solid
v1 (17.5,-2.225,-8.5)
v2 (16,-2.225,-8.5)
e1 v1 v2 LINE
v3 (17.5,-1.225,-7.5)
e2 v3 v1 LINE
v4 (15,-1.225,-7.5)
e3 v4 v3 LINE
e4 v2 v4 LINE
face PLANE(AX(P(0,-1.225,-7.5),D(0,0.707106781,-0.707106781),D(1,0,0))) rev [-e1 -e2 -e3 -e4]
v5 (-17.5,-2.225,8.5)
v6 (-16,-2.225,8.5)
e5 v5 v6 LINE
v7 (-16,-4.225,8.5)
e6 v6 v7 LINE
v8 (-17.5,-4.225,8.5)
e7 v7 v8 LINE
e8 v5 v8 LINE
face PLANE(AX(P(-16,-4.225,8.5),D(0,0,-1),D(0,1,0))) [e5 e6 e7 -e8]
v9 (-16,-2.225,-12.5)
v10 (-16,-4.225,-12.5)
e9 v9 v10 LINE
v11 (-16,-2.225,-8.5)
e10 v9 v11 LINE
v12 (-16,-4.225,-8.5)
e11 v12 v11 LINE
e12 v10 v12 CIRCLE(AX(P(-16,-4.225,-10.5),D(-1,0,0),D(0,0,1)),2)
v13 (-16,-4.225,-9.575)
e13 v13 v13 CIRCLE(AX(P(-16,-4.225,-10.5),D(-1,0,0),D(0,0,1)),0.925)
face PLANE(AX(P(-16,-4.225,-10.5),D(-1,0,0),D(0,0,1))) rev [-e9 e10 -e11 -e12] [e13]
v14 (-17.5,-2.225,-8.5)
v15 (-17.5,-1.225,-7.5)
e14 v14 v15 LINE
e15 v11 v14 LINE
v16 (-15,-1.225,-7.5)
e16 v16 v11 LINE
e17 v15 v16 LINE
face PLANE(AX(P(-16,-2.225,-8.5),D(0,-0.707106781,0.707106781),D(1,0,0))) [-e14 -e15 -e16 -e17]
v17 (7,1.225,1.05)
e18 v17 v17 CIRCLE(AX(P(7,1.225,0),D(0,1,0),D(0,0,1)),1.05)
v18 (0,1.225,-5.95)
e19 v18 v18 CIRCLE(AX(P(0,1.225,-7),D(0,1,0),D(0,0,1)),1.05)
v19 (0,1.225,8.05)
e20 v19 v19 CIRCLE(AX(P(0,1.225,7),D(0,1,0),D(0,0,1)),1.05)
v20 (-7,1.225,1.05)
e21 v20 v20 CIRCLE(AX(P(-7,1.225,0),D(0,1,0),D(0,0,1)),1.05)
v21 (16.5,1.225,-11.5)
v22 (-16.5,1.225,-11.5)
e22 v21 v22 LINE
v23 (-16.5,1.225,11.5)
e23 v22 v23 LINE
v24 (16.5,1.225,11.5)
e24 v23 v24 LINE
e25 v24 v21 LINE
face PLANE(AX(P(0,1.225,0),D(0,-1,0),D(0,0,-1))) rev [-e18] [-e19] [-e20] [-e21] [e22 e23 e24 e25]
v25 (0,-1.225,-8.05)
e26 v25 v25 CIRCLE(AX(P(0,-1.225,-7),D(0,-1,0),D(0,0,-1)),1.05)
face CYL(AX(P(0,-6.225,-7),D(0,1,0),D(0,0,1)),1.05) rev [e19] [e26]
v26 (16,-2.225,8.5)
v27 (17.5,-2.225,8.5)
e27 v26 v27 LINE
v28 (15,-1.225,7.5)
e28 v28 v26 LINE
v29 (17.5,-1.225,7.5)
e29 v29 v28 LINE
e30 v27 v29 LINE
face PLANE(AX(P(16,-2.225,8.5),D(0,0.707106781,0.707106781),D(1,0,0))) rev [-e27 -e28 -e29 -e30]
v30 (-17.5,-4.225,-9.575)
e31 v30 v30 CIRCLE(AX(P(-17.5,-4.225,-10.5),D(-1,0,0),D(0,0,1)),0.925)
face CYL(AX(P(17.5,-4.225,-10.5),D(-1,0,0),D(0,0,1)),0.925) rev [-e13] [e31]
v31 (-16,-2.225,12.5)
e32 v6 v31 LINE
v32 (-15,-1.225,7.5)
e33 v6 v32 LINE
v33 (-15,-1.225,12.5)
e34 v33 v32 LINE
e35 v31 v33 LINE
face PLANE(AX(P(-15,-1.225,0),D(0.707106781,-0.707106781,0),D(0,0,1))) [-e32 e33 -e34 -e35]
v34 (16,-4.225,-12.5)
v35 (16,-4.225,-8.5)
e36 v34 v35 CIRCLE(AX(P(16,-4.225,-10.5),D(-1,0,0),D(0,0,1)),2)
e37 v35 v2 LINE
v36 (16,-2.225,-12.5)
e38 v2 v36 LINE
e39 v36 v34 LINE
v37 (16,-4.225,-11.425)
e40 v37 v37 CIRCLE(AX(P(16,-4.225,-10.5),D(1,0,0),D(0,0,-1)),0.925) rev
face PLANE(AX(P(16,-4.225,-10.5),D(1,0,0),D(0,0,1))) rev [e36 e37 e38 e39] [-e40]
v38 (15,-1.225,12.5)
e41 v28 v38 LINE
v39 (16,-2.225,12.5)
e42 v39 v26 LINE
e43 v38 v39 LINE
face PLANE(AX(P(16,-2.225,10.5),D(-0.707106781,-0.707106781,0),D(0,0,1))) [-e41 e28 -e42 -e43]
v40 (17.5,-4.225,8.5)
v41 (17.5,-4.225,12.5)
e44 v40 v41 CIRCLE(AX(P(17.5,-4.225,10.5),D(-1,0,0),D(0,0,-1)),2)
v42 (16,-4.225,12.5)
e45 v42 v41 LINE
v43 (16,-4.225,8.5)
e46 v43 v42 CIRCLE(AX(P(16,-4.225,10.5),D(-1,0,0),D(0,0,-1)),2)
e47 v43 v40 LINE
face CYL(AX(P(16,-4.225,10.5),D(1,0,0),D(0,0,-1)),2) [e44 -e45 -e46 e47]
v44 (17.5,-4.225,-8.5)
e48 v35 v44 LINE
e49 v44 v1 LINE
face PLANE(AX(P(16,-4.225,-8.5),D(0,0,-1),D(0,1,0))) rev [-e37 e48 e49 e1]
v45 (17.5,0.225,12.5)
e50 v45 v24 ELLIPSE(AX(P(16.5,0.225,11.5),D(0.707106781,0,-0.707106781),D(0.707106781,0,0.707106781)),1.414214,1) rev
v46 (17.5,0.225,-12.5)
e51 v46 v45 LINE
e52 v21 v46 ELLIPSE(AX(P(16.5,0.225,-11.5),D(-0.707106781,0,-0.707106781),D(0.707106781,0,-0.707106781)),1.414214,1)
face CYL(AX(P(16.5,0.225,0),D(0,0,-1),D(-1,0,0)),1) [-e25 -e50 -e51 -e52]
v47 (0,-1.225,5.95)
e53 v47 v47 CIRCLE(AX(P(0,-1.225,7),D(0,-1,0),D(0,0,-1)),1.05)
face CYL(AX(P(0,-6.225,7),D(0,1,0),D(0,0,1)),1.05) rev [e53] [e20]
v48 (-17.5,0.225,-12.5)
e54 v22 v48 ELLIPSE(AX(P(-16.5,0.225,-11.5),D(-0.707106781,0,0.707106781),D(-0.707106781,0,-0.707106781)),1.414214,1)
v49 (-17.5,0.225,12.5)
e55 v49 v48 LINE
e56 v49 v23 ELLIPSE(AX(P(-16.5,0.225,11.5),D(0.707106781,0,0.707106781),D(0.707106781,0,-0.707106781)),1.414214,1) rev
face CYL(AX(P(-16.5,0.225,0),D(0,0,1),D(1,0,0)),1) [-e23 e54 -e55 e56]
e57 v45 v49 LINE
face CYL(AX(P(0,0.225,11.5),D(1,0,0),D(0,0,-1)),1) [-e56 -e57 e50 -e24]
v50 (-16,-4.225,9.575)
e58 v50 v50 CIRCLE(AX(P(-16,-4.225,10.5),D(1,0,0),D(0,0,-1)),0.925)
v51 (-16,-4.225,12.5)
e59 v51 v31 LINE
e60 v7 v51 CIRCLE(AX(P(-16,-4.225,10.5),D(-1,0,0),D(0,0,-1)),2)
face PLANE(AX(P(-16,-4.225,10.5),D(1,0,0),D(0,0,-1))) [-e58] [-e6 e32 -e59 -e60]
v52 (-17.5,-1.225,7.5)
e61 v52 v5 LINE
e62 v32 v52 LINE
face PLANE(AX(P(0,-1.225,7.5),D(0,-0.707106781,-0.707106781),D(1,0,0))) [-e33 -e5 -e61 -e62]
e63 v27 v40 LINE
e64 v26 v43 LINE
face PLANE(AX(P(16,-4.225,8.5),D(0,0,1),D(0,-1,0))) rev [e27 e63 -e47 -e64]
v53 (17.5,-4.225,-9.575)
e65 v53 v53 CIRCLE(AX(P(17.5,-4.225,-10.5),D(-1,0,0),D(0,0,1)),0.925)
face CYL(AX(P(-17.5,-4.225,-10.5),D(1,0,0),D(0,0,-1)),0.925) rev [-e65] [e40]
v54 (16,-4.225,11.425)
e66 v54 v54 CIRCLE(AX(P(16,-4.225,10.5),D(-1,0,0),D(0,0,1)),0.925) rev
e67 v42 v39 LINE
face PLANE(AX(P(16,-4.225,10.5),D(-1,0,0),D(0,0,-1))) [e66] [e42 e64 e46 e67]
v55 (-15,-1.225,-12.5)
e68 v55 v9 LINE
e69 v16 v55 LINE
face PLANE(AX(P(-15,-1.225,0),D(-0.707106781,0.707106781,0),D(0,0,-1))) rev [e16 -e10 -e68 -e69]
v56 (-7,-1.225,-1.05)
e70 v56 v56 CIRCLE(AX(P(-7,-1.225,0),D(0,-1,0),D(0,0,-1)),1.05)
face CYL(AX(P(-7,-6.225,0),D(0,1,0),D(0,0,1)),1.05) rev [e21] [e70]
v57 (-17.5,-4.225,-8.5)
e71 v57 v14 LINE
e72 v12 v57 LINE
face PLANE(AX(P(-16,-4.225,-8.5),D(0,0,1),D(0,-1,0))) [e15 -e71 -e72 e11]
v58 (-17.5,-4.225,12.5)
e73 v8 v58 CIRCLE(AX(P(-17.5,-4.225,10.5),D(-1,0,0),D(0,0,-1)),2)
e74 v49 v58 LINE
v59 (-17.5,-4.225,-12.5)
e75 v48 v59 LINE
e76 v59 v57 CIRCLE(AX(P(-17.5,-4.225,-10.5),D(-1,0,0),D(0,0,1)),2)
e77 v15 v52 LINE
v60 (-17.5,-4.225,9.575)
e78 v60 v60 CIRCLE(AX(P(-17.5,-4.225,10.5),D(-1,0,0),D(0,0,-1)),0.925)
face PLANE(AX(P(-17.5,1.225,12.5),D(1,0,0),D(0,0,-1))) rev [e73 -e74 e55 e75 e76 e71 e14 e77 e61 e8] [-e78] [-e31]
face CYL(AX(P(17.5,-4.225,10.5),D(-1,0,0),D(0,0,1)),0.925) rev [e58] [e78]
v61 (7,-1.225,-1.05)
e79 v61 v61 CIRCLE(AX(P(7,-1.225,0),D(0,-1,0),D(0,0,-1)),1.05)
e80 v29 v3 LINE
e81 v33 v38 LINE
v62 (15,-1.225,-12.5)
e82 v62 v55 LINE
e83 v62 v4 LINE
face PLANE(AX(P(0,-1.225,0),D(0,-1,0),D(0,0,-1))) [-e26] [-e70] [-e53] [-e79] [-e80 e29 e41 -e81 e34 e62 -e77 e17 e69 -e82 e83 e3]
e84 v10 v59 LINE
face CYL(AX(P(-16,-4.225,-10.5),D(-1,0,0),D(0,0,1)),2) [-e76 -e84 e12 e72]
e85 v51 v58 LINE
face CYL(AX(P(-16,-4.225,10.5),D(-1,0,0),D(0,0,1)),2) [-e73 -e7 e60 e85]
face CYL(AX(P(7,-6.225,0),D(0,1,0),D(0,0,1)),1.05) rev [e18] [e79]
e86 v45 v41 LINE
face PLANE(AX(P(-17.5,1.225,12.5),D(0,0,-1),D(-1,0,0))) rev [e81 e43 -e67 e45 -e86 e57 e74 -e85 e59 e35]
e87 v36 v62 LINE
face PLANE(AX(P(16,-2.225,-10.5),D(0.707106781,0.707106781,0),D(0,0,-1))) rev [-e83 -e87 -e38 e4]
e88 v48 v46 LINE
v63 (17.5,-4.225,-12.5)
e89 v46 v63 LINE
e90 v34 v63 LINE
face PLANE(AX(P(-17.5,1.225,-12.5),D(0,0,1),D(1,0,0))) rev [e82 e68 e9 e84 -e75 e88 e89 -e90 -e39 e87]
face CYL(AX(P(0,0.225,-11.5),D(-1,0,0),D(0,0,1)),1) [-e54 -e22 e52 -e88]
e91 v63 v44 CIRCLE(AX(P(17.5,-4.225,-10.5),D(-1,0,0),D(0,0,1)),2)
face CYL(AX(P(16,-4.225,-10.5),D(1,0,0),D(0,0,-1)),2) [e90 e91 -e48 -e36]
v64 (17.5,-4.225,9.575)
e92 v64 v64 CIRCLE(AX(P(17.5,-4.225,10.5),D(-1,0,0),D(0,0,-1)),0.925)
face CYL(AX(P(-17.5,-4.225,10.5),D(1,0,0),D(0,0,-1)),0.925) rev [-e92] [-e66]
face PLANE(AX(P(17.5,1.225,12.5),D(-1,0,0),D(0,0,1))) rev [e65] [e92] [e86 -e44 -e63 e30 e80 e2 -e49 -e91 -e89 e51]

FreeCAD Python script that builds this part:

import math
import FreeCAD as App
import Part
import Sketcher

V = App.Vector


def edges_at(feature, points):
    """Names of the edges that pass closest to the given points."""
    edges = feature.Shape.Edges
    near = lambda p: min(range(len(edges)), key=lambda i: edges[i].distToShape(Part.Vertex(*p))[0])
    return sorted({f"Edge{near(p) + 1}" for p in points})


def add_polygon(sketch, points):
    """Adds a closed chain of lines whose ends are joined by coincident constraints."""
    first, n = sketch.GeometryCount, len(points)
    for a, b in zip(points, points[1:] + points[:1]):
        sketch.addGeometry(Part.LineSegment(App.Vector(*a, 0), App.Vector(*b, 0)), False)
    for i in range(n):
        sketch.addConstraint(Sketcher.Constraint("Coincident", first + i, 2, first + (i + 1) % n, 1))

doc = App.newDocument("Part")
body = doc.addObject("PartDesign::Body", "Body")

# Sketch on XZ plane
sketch1 = body.newObject("Sketcher::SketchObject", "Sketch")
sketch1.AttachmentSupport = (doc.getObject("XZ_Plane"), [""])
sketch1.MapMode = "FlatFace"
add_polygon(sketch1, [(-18, -12), (-18, 12), (18, 12), (18, -12)])  # lines 0-3
sketch1.addConstraint(Sketcher.Constraint("Vertical", 0))
sketch1.addConstraint(Sketcher.Constraint("Horizontal", 1))
sketch1.addConstraint(Sketcher.Constraint("Vertical", 2))
sketch1.addConstraint(Sketcher.Constraint("Horizontal", 3))
sketch1.addConstraint(Sketcher.Constraint("Symmetric", 0, 2, 2, 2, -1, 1))
sketch1.addConstraint(Sketcher.Constraint("DistanceX", 1, 1, 1, 2, 35.0))
sketch1.addConstraint(Sketcher.Constraint("DistanceY", 0, 1, 0, 2, 25.0))
pad1 = body.newObject("PartDesign::Pad", "Pad")
pad1.Profile = sketch1
pad1.Length = 2.45
pad1.Midplane = True

# Sketch on YZ plane
sketch2 = body.newObject("Sketcher::SketchObject", "Sketch001")
sketch2.AttachmentSupport = (doc.getObject("YZ_Plane"), [""])
sketch2.MapMode = "FlatFace"
sketch2.AttachmentOffset = App.Placement(V(0, 0, -17.5), App.Rotation())
sketch2.addGeometry(Part.LineSegment(V(-1.2, -12.5, 0), V(-4.2, -12.5, 0)), False)
sketch2.addGeometry(Part.ArcOfCircle(Part.Circle(V(-4.2, -10.5, 0), V(0, 0, 1), 2), math.radians(90), math.radians(270)), False)
sketch2.addGeometry(Part.LineSegment(V(-4.2, -8.5, 0), V(-1.2, -8.5, 0)), False)
sketch2.addGeometry(Part.LineSegment(V(-1.2, -8.5, 0), V(-1.2, -12.5, 0)), False)
sketch2.addGeometry(Part.LineSegment(V(-1.2, 12.5, 0), V(-1.2, 8.5, 0)), False)
sketch2.addGeometry(Part.LineSegment(V(-1.2, 8.5, 0), V(-4.2, 8.5, 0)), False)
sketch2.addGeometry(Part.ArcOfCircle(Part.Circle(V(-4.2, 10.5, 0), V(0, 0, 1), 2), math.radians(90), math.radians(270)), False)
sketch2.addGeometry(Part.LineSegment(V(-4.2, 12.5, 0), V(-1.2, 12.5, 0)), False)
sketch2.addConstraint(Sketcher.Constraint("Tangent", 0, 2, 1, 2))
sketch2.addConstraint(Sketcher.Constraint("Tangent", 1, 1, 2, 1))
sketch2.addConstraint(Sketcher.Constraint("Coincident", 2, 2, 3, 1))
sketch2.addConstraint(Sketcher.Constraint("Coincident", 3, 2, 0, 1))
sketch2.addConstraint(Sketcher.Constraint("Coincident", 4, 2, 5, 1))
sketch2.addConstraint(Sketcher.Constraint("Tangent", 5, 2, 6, 2))
sketch2.addConstraint(Sketcher.Constraint("Tangent", 6, 1, 7, 1))
sketch2.addConstraint(Sketcher.Constraint("Coincident", 7, 2, 4, 1))
sketch2.addConstraint(Sketcher.Constraint("Horizontal", 0))
sketch2.addConstraint(Sketcher.Constraint("Horizontal", 2))
sketch2.addConstraint(Sketcher.Constraint("Vertical", 3))
sketch2.addConstraint(Sketcher.Constraint("Vertical", 4))
sketch2.addConstraint(Sketcher.Constraint("Horizontal", 5))
sketch2.addConstraint(Sketcher.Constraint("Horizontal", 7))
sketch2.addConstraint(Sketcher.Constraint("Equal", 1, 6))
sketch2.addConstraint(Sketcher.Constraint("Symmetric", 1, 3, 6, 3, -1))
sketch2.addConstraint(Sketcher.Constraint("Vertical", 3, 2, 4, 2))
sketch2.addConstraint(Sketcher.Constraint("Radius", 1, 2.0))
sketch2.addConstraint(Sketcher.Constraint("DistanceX", 0, 2, 0, 1, 3.0))
sketch2.addConstraint(Sketcher.Constraint("DistanceY", 1, 3, 6, 3, 21.0))
sketch2.addConstraint(Sketcher.Constraint("DistanceX", 1, 3, -1, 1, 4.225))
pad2 = body.newObject("PartDesign::Pad", "Pad001")
pad2.Profile = sketch2
pad2.Length = 1.5

# Sketch on YZ plane
sketch3 = body.newObject("Sketcher::SketchObject", "Sketch002")
sketch3.AttachmentSupport = (doc.getObject("YZ_Plane"), [""])
sketch3.MapMode = "FlatFace"
sketch3.AttachmentOffset = App.Placement(V(0, 0, -17.5), App.Rotation())
sketch3.addGeometry(Part.Circle(V(-4.2, -10.5, 0), V(0, 0, 1), 0.9), False)
sketch3.addGeometry(Part.Circle(V(-4.2, 10.5, 0), V(0, 0, 1), 0.9), False)
sketch3.addConstraint(Sketcher.Constraint("Equal", 0, 1))
sketch3.addConstraint(Sketcher.Constraint("Symmetric", 0, 3, 1, 3, -1))
sketch3.addConstraint(Sketcher.Constraint("Diameter", 0, 1.85))
sketch3.addConstraint(Sketcher.Constraint("DistanceY", 0, 3, 1, 3, 21.0))
sketch3.addConstraint(Sketcher.Constraint("DistanceX", 0, 3, -1, 1, 4.225))
pocket1 = body.newObject("PartDesign::Pocket", "Pocket")
pocket1.Profile = sketch3
pocket1.Type = "ThroughAll"
pocket1.Reversed = True
doc.recompute()

mirrored = body.newObject("PartDesign::Mirrored", "Mirrored")
mirrored.Originals = [pad2, pocket1]
mirrored.MirrorPlane = (doc.getObject("YZ_Plane"), [""])
body.Tip = mirrored
doc.recompute()

chamfer = body.newObject("PartDesign::Chamfer", "Chamfer")
chamfer.Base = (mirrored, edges_at(mirrored, [
    (-16, -1.225, -10.5),
    (-16.75, -1.225, -8.5),
    (-16, -1.225, 10.5),
    (-16.75, -1.225, 8.5),
    (16.75, -1.225, -8.5),
    (16, -1.225, -10.5),
    (16.75, -1.225, 8.5),
    (16, -1.225, 10.5),
]))
chamfer.Size = 1
doc.recompute()

fillet = body.newObject("PartDesign::Fillet", "Fillet")
fillet.Base = (chamfer, edges_at(chamfer, [
    (-17.5, 1.225, 0),
    (0, 1.225, 12.5),
    (17.5, 1.225, 0),
    (0, 1.225, -12.5),
]))
fillet.Radius = 1

# Sketch on XZ plane
sketch4 = body.newObject("Sketcher::SketchObject", "Sketch003")
sketch4.AttachmentSupport = (doc.getObject("XZ_Plane"), [""])
sketch4.MapMode = "FlatFace"
sketch4.AttachmentOffset = App.Placement(V(0, 0, -1.225), App.Rotation())
sketch4.addGeometry(Part.Circle(V(0, -7, 0), V(0, 0, 1), 1.1), False)
sketch4.addGeometry(Part.Circle(V(7, 0, 0), V(0, 0, 1), 1.1), False)
sketch4.addGeometry(Part.Circle(V(-7, 0, 0), V(0, 0, 1), 1.1), False)
sketch4.addGeometry(Part.Circle(V(0, 7, 0), V(0, 0, 1), 1.1), False)
sketch4.addConstraint(Sketcher.Constraint("Equal", 0, 1))
sketch4.addConstraint(Sketcher.Constraint("Equal", 1, 2))
sketch4.addConstraint(Sketcher.Constraint("Equal", 2, 3))
sketch4.addConstraint(Sketcher.Constraint("Symmetric", 1, 3, 2, 3, -1, 1))
sketch4.addConstraint(Sketcher.Constraint("Symmetric", 0, 3, 3, 3, -1, 1))
sketch4.addConstraint(Sketcher.Constraint("PointOnObject", 0, 3, -2))
sketch4.addConstraint(Sketcher.Constraint("PointOnObject", 1, 3, -1))
sketch4.addConstraint(Sketcher.Constraint("Diameter", 0, 2.1))
sketch4.addConstraint(Sketcher.Constraint("DistanceY", 0, 3, -1, 1, 7.0))
sketch4.addConstraint(Sketcher.Constraint("DistanceX", -1, 1, 1, 3, 7.0))
pocket2 = body.newObject("PartDesign::Pocket", "Pocket001")
pocket2.Profile = sketch4
pocket2.Type = "ThroughAll"
pocket2.Reversed = True

doc.recompute()
